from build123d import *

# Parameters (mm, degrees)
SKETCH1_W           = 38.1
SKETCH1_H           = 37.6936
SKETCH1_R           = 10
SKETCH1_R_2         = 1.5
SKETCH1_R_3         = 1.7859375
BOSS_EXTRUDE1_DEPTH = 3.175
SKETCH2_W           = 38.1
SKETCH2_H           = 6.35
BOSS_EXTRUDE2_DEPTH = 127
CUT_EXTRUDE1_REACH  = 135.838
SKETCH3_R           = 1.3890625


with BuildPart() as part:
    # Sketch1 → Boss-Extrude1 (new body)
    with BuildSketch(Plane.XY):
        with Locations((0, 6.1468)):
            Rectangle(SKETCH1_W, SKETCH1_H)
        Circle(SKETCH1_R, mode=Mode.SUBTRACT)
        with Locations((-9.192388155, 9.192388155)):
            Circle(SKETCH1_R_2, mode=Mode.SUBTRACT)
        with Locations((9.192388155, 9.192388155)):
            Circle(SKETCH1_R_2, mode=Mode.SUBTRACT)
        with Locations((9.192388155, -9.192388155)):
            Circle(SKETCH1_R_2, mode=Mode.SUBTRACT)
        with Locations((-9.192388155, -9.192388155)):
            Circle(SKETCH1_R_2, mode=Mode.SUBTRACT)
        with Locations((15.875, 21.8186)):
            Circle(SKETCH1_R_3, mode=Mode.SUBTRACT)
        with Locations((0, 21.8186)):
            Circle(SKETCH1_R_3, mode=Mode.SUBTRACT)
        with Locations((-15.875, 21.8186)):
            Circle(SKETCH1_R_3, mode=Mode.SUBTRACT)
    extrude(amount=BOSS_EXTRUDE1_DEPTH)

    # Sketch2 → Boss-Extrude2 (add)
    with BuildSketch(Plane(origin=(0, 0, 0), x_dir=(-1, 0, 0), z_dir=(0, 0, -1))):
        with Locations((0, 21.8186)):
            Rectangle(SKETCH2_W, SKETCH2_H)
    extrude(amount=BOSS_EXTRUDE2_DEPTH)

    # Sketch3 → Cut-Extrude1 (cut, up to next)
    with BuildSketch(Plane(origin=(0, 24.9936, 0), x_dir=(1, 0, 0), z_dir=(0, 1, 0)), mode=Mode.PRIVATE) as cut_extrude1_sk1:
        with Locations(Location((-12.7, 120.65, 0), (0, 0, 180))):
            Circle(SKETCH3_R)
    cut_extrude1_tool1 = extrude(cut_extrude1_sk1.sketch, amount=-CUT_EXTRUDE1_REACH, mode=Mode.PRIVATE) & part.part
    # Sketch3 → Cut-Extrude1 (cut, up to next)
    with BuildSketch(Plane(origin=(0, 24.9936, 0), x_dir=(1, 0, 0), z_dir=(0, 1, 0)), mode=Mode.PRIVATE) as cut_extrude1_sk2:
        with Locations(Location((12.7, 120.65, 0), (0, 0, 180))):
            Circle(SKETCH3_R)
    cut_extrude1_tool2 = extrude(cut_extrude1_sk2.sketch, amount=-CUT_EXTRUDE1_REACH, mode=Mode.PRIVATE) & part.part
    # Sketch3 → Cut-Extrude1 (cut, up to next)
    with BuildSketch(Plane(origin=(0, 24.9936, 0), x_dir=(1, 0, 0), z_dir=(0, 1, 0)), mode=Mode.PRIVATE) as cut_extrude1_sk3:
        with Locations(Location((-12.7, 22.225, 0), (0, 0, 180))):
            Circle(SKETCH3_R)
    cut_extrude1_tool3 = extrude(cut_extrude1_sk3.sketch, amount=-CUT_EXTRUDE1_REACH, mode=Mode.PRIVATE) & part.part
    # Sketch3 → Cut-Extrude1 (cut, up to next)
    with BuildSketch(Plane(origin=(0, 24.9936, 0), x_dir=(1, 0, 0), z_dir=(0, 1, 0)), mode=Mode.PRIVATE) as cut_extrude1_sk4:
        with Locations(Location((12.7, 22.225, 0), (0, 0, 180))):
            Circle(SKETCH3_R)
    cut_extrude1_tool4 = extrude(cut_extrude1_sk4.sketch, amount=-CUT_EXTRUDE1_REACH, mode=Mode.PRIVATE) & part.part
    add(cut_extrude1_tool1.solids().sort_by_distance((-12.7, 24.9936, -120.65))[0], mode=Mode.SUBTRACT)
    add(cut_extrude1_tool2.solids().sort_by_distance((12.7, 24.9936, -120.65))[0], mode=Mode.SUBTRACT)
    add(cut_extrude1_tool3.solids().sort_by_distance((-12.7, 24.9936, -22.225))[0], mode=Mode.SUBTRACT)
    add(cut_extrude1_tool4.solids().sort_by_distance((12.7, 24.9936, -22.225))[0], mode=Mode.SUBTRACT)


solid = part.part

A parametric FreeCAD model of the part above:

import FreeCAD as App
import Part
import Sketcher
from FreeCAD import Vector
Q = App.Units.Quantity


def add_polygon(sketch, points):
    """Adds a closed chain of lines whose ends are joined by coincident constraints."""
    first, n = sketch.GeometryCount, len(points)
    for a, b in zip(points, points[1:] + points[:1]):
        sketch.addGeometry(Part.LineSegment(App.Vector(*a, 0), App.Vector(*b, 0)), False)
    for i in range(n):
        sketch.addConstraint(Sketcher.Constraint("Coincident", first + i, 2, first + (i + 1) % n, 1))

doc = App.newDocument("Part")
body = doc.addObject("PartDesign::Body", "Body")

sketch1 = body.newObject("Sketcher::SketchObject", "Sketch")
sketch1.AttachmentSupport = (doc.getObject("XY_Plane"), [""])
sketch1.MapMode = "FlatFace"
add_polygon(sketch1, [(-19.05, 24.9936), (-19.05, -12.7), (19.05, -12.7), (19.05, 24.9936)])
sketch1.addGeometry(Part.Circle(Vector(-9.192388, -9.192388, 0), Vector(0, 0, 1), 1.5), False)
sketch1.addGeometry(Part.Circle(Vector(9.192388, -9.192388, 0), Vector(0, 0, 1), 1.5), False)
sketch1.addGeometry(Part.Circle(Vector(0, 0, 0), Vector(0, 0, 1), 10), False)
sketch1.addGeometry(Part.Circle(Vector(-9.192388, 9.192388, 0), Vector(0, 0, 1), 1.5), False)
sketch1.addGeometry(Part.Circle(Vector(-15.875, 21.8186, 0), Vector(0, 0, 1), 1.785937), False)
sketch1.addGeometry(Part.Circle(Vector(9.192388, 9.192388, 0), Vector(0, 0, 1), 1.5), False)
sketch1.addGeometry(Part.Circle(Vector(0, 21.8186, 0), Vector(0, 0, 1), 1.785937), False)
sketch1.addGeometry(Part.Circle(Vector(15.875, 21.8186, 0), Vector(0, 0, 1), 1.785937), False)
sketch1.addConstraint([
    Sketcher.Constraint("Vertical", 0),
    Sketcher.Constraint("Horizontal", 1),
    Sketcher.Constraint("Vertical", 2),
    Sketcher.Constraint("Horizontal", 3),
    Sketcher.Constraint("Coincident", 6, 3, -1, 1),
    Sketcher.Constraint("Equal", 4, 5),
    Sketcher.Constraint("Equal", 5, 7),
    Sketcher.Constraint("Equal", 7, 9),
    Sketcher.Constraint("Equal", 8, 10),
    Sketcher.Constraint("Equal", 10, 11),
    Sketcher.Constraint("Symmetric", 5, 3, 7, 3, -1, 1),
    Sketcher.Constraint("Symmetric", 4, 3, 9, 3, -1, 1),
    Sketcher.Constraint("Symmetric", 4, 3, 5, 3, -2),
    Sketcher.Constraint("Symmetric", 8, 3, 11, 3, -2),
    Sketcher.Constraint("PointOnObject", 10, 3, -2),
    Sketcher.Constraint("Horizontal", 8, 3, 10, 3),
    Sketcher.Constraint("Diameter", 8, Q("0.140625 in")),
    Sketcher.Constraint("DistanceX", 1, 1, 1, 2, Q("1.5 in")),
    Sketcher.Constraint("DistanceY", 0, 2, -1, 1, Q("0.5 in")),
    Sketcher.Constraint("Diameter", 4, 3.0),
    Sketcher.Constraint("Diameter", 6, 20.0),
    Sketcher.Constraint("DistanceY", 0, 2, 0, 1, Q("1.484 in")),
    Sketcher.Constraint("DistanceX", 0, 2, -1, 1, Q("0.75 in")),
    Sketcher.Constraint("DistanceX", 8, 3, -1, 1, Q("0.625 in")),
    Sketcher.Constraint("DistanceY", -1, 1, 8, 3, Q("0.859 in")),
    Sketcher.Constraint("DistanceX", 4, 3, -1, 1, 9.192388),
    Sketcher.Constraint("DistanceY", 4, 3, -1, 1, 9.192388),
])
pad1 = body.newObject("PartDesign::Pad", "Pad")
pad1.Profile = sketch1
pad1.Length = Q("0.125 in")

sketch2 = body.newObject("Sketcher::SketchObject", "Sketch001")
sketch2.AttachmentSupport = (doc.getObject("XY_Plane"), [""])
sketch2.MapMode = "FlatFace"
add_polygon(sketch2, [(19.05, 24.9936), (19.05, 18.6436), (-19.05, 18.6436), (-19.05, 24.9936)])
sketch2.addConstraint([
    Sketcher.Constraint("Vertical", 0),
    Sketcher.Constraint("Horizontal", 1),
    Sketcher.Constraint("Vertical", 2),
    Sketcher.Constraint("Horizontal", 3),
    Sketcher.Constraint("DistanceX", 1, 2, 1, 1, Q("1.5 in")),
    Sketcher.Constraint("DistanceY", 0, 2, 0, 1, Q("0.25 in")),
    Sketcher.Constraint("DistanceX", -1, 1, 0, 2, Q("0.75 in")),
    Sketcher.Constraint("DistanceY", -1, 1, 0, 2, Q("0.734 in")),
])
pad2 = body.newObject("PartDesign::Pad", "Pad001")
pad2.Profile = sketch2
pad2.Length = Q("5 in")
pad2.Reversed = True

sketch3 = body.newObject("Sketcher::SketchObject", "Sketch002")
sketch3.AttachmentSupport = (doc.getObject("XZ_Plane"), [""])
sketch3.MapMode = "FlatFace"
sketch3.AttachmentOffset = App.Placement(Vector(0, 0, -0.984 * 25.4), App.Rotation())
sketch3.addGeometry(Part.Circle(Vector(-12.7, -120.65, 0), Vector(0, 0, 1), 1.389063), False)
sketch3.addConstraint([
    Sketcher.Constraint("Diameter", 0, Q("0.109375 in")),
    Sketcher.Constraint("DistanceX", 0, 3, -1, 1, Q("0.5 in")),
    Sketcher.Constraint("DistanceY", 0, 3, -1, 1, Q("4.75 in")),
])
pocket1 = body.newObject("PartDesign::Pocket", "Pocket")
pocket1.Profile = sketch3
pocket1.Type = "UpToFirst"
pocket1.Reversed = True

sketch4 = body.newObject("Sketcher::SketchObject", "Sketch003")
sketch4.AttachmentSupport = (doc.getObject("XZ_Plane"), [""])
sketch4.MapMode = "FlatFace"
sketch4.AttachmentOffset = App.Placement(Vector(0, 0, -0.984 * 25.4), App.Rotation())
sketch4.addGeometry(Part.Circle(Vector(12.7, -120.65, 0), Vector(0, 0, 1), 1.389063), False)
sketch4.addConstraint([
    Sketcher.Constraint("Diameter", 0, Q("0.109375 in")),
    Sketcher.Constraint("DistanceX", -1, 1, 0, 3, Q("0.5 in")),
    Sketcher.Constraint("DistanceY", 0, 3, -1, 1, Q("4.75 in")),
])
pocket2 = body.newObject("PartDesign::Pocket", "Pocket001")
pocket2.Profile = sketch4
pocket2.Type = "UpToFirst"
pocket2.Reversed = True

sketch5 = body.newObject("Sketcher::SketchObject", "Sketch004")
sketch5.AttachmentSupport = (doc.getObject("XZ_Plane"), [""])
sketch5.MapMode = "FlatFace"
sketch5.AttachmentOffset = App.Placement(Vector(0, 0, -0.984 * 25.4), App.Rotation())
sketch5.addGeometry(Part.Circle(Vector(-12.7, -22.225, 0), Vector(0, 0, 1), 1.389063), False)
sketch5.addConstraint([
    Sketcher.Constraint("Diameter", 0, Q("0.109375 in")),
    Sketcher.Constraint("DistanceX", 0, 3, -1, 1, Q("0.5 in")),
    Sketcher.Constraint("DistanceY", 0, 3, -1, 1, Q("0.875 in")),
])
pocket3 = body.newObject("PartDesign::Pocket", "Pocket002")
pocket3.Profile = sketch5
pocket3.Type = "UpToFirst"
pocket3.Reversed = True

sketch6 = body.newObject("Sketcher::SketchObject", "Sketch005")
sketch6.AttachmentSupport = (doc.getObject("XZ_Plane"), [""])
sketch6.MapMode = "FlatFace"
sketch6.AttachmentOffset = App.Placement(Vector(0, 0, -0.984 * 25.4), App.Rotation())
sketch6.addGeometry(Part.Circle(Vector(12.7, -22.225, 0), Vector(0, 0, 1), 1.389063), False)
sketch6.addConstraint([
    Sketcher.Constraint("Diameter", 0, Q("0.109375 in")),
    Sketcher.Constraint("DistanceX", -1, 1, 0, 3, Q("0.5 in")),
    Sketcher.Constraint("DistanceY", 0, 3, -1, 1, Q("0.875 in")),
])
pocket4 = body.newObject("PartDesign::Pocket", "Pocket003")
pocket4.Profile = sketch6
pocket4.Type = "UpToFirst"
pocket4.Reversed = True

doc.recompute()
